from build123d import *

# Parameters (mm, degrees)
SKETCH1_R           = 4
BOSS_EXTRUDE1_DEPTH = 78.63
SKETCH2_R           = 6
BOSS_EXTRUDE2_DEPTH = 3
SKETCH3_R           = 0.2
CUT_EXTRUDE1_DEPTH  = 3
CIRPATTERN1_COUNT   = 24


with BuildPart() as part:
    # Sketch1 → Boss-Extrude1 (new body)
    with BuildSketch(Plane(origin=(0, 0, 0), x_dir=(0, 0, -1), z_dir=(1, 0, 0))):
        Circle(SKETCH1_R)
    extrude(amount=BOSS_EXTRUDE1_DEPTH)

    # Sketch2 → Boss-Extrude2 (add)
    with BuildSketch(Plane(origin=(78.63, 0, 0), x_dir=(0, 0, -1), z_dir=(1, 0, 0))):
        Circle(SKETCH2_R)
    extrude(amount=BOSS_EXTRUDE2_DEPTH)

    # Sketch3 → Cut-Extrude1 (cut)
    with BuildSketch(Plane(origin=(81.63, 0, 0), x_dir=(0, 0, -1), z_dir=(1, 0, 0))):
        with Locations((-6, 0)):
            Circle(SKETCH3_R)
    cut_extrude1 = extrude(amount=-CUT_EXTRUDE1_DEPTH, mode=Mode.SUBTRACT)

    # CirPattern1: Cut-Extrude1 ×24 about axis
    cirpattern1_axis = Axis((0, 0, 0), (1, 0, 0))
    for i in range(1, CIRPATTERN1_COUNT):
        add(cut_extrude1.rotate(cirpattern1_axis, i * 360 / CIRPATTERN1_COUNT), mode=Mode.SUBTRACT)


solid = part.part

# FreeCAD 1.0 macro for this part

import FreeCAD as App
import Part
import Sketcher
Q = App.Units.Quantity

doc = App.newDocument("Part")
body = doc.addObject("PartDesign::Body", "Body")

# Sketch on YZ plane
sketch1 = body.newObject("Sketcher::SketchObject", "Sketch")
sketch1.AttachmentSupport = (doc.getObject("YZ_Plane"), [""])
sketch1.MapMode = "FlatFace"
sketch1.addGeometry(Part.Circle(App.Vector(0, 0, 0), App.Vector(0, 0, 1), 4), False)
sketch1.addConstraint([
    Sketcher.Constraint("Coincident", 0, 3, -1, 1),
    Sketcher.Constraint("Diameter", 0, Q("8 mm")),
])
pad1 = body.newObject("PartDesign::Pad", "Pad")
pad1.Profile = sketch1
pad1.Length = 78.63

# Sketch on YZ plane
sketch2 = body.newObject("Sketcher::SketchObject", "Sketch001")
sketch2.AttachmentSupport = (doc.getObject("YZ_Plane"), [""])
sketch2.MapMode = "FlatFace"
sketch2.AttachmentOffset = App.Placement(App.Vector(0, 0, 78.63), App.Rotation())
sketch2.addGeometry(Part.Circle(App.Vector(0, 0, 0), App.Vector(0, 0, 1), 6), False)
sketch2.addConstraint([
    Sketcher.Constraint("Coincident", 0, 3, -1, 1),
    Sketcher.Constraint("Diameter", 0, Q("12 mm")),
])
pad2 = body.newObject("PartDesign::Pad", "Pad001")
pad2.Profile = sketch2
pad2.Length = 3

# Sketch on YZ plane
sketch3 = body.newObject("Sketcher::SketchObject", "Sketch002")
sketch3.AttachmentSupport = (doc.getObject("YZ_Plane"), [""])
sketch3.MapMode = "FlatFace"
sketch3.AttachmentOffset = App.Placement(App.Vector(0, 0, 81.63), App.Rotation())
sketch3.addGeometry(Part.Circle(App.Vector(0, 6, 0), App.Vector(0, 0, 1), 0.2), False)
sketch3.addConstraint([
    Sketcher.Constraint("PointOnObject", 0, 3, -2),
    Sketcher.Constraint("Diameter", 0, Q("0.4 mm")),
    Sketcher.Constraint("DistanceY", -1, 1, 0, 3, Q("6 mm")),
])
pocket1 = body.newObject("PartDesign::Pocket", "Pocket")
pocket1.Profile = sketch3
pocket1.Length = 3
doc.recompute()

polarpattern = body.newObject("PartDesign::PolarPattern", "PolarPattern")
polarpattern.Originals = [pocket1]
polarpattern.Axis = (doc.getObject("X_Axis"), [""])
polarpattern.Angle = 360
polarpattern.Occurrences = 24
body.Tip = polarpattern

doc.recompute()
